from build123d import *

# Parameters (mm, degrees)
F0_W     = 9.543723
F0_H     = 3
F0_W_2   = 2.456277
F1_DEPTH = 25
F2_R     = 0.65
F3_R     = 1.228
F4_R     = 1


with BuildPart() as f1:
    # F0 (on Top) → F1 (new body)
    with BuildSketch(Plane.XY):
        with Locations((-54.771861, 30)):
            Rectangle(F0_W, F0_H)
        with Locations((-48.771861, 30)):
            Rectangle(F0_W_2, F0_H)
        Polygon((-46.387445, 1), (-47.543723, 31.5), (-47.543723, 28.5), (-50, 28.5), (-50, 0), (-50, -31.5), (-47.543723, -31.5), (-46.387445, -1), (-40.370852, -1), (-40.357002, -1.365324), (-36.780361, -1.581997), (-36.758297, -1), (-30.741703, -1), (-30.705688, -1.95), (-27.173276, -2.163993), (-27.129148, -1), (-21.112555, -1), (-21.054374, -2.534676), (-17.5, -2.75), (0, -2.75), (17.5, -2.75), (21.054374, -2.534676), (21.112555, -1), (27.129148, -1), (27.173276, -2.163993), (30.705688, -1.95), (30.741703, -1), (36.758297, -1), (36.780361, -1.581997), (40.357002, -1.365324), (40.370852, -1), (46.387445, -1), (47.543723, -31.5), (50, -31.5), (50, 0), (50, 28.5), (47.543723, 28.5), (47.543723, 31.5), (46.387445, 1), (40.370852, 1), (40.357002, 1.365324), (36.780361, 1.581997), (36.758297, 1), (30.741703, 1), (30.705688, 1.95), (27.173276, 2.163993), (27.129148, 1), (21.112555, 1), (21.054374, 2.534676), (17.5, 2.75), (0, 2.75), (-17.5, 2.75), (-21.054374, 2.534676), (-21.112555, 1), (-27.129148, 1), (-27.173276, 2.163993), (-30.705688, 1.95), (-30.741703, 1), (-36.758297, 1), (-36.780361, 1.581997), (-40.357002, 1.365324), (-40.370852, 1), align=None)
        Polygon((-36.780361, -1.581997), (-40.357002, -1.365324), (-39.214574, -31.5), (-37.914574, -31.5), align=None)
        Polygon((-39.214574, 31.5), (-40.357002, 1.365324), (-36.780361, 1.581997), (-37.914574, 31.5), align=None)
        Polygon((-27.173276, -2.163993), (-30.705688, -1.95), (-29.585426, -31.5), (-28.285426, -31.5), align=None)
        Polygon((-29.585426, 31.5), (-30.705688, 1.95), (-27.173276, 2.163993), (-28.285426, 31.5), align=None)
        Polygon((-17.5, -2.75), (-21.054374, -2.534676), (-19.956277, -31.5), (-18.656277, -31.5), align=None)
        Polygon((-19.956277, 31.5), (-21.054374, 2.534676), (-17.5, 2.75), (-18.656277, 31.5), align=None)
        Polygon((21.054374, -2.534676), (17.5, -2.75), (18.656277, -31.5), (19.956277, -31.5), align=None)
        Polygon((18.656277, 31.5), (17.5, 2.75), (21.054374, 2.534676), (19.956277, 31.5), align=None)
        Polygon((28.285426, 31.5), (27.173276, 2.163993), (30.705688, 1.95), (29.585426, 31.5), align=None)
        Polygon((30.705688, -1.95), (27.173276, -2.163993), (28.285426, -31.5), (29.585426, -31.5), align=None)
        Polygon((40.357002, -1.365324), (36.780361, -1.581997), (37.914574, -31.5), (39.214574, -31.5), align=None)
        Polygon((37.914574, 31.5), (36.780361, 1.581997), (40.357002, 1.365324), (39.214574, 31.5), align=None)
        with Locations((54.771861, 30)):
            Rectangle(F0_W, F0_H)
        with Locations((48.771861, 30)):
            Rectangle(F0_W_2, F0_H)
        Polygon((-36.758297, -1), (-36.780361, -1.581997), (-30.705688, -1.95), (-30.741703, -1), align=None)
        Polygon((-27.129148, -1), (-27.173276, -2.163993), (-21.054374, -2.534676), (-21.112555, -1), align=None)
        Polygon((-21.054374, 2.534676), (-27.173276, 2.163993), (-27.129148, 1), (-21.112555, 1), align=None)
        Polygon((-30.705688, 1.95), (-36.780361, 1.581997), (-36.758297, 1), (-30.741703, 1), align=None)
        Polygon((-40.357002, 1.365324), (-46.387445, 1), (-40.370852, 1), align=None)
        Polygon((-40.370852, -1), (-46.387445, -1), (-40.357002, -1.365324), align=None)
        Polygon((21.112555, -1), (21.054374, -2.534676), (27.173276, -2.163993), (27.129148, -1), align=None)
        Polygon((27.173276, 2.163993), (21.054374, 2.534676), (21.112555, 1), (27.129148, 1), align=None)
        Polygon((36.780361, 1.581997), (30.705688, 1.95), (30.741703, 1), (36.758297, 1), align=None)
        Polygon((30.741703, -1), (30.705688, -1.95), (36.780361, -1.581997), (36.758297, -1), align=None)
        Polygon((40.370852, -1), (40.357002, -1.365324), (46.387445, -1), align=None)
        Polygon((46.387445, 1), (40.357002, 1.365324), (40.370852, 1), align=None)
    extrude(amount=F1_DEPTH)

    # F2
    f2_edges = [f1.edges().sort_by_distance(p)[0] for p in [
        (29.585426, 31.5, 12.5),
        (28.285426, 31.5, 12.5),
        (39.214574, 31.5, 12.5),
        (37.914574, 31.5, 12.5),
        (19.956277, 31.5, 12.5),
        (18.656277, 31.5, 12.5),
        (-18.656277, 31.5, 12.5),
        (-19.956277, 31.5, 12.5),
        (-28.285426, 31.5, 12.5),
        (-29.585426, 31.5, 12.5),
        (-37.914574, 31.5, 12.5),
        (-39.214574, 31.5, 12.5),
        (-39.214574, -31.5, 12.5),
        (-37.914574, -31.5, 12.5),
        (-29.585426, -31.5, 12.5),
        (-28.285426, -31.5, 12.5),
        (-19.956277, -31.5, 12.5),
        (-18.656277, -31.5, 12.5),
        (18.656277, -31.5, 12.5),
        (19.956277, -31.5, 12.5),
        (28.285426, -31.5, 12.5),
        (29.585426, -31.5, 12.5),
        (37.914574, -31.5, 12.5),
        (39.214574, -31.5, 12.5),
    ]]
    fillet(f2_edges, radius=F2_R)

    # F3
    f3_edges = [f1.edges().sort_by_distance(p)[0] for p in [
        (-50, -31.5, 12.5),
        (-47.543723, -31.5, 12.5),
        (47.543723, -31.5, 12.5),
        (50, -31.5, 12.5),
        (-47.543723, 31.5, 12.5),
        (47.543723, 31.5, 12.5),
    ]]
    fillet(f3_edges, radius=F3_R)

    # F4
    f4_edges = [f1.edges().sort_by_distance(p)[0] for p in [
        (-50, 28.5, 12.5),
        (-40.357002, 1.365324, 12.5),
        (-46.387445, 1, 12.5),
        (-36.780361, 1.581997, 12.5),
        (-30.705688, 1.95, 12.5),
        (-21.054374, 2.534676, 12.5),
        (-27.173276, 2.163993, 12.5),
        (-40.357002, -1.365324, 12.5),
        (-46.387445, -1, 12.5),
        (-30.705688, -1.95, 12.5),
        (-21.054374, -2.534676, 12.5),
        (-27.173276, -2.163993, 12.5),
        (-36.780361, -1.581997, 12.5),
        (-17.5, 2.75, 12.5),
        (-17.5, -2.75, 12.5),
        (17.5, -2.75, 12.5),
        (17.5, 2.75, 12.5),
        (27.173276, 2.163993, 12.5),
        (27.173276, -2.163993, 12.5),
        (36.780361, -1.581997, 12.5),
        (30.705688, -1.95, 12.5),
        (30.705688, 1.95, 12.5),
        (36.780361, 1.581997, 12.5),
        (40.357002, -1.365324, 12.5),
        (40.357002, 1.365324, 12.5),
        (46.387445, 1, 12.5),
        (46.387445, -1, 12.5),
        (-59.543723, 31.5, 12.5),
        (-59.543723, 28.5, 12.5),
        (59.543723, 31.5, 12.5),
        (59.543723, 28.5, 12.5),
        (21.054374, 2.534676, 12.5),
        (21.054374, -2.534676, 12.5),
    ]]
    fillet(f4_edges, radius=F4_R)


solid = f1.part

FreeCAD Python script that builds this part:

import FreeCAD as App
import Part
import Sketcher
Q = App.Units.Quantity


def edges_at(feature, points):
    """Names of the edges that pass closest to the given points."""
    edges = feature.Shape.Edges
    near = lambda p: min(range(len(edges)), key=lambda i: edges[i].distToShape(Part.Vertex(*p))[0])
    return sorted({f"Edge{near(p) + 1}" for p in points})


def add_polygon(sketch, points):
    """Adds a closed chain of lines whose ends are joined by coincident constraints."""
    first, n = sketch.GeometryCount, len(points)
    for a, b in zip(points, points[1:] + points[:1]):
        sketch.addGeometry(Part.LineSegment(App.Vector(*a, 0), App.Vector(*b, 0)), False)
    for i in range(n):
        sketch.addConstraint(Sketcher.Constraint("Coincident", first + i, 2, first + (i + 1) % n, 1))

doc = App.newDocument("Part")
body = doc.addObject("PartDesign::Body", "Body")

sketch1 = body.newObject("Sketcher::SketchObject", "Sketch")
sketch1.AttachmentSupport = (doc.getObject("XY_Plane"), [""])
sketch1.MapMode = "FlatFace"
add_polygon(sketch1, [(-59.543723, 31.5), (-59.543723, 28.5), (-50, 28.5), (-50, -31.5), (-47.543723, -31.5), (-46.387445, -1), (-40.357002, -1.365324), (-39.214574, -31.5), (-37.914574, -31.5), (-36.780361, -1.581997), (-30.705688, -1.95), (-29.585426, -31.5), (-28.285426, -31.5), (-27.173276, -2.163993), (-21.054374, -2.534676), (-19.956277, -31.5), (-18.656277, -31.5), (-17.5, -2.75), (17.5, -2.75), (18.656277, -31.5), (19.956277, -31.5), (21.054374, -2.534676), (27.173276, -2.163993), (28.285426, -31.5), (29.585426, -31.5), (30.705688, -1.95), (36.780361, -1.581997), (37.914574, -31.5), (39.214574, -31.5), (40.357002, -1.365324), (46.387445, -1), (47.543723, -31.5), (50, -31.5), (50, 28.5), (59.543723, 28.5), (59.543723, 31.5), (47.543723, 31.5), (47.543723, 31.499987), (46.387445, 1), (40.357002, 1.365324), (39.214574, 31.5), (37.914574, 31.5), (36.780361, 1.581997), (30.705688, 1.95), (29.585426, 31.5), (28.285426, 31.5), (27.173276, 2.163993), (21.054374, 2.534676), (19.956277, 31.5), (18.656277, 31.5), (17.5, 2.75), (-17.5, 2.75), (-18.656277, 31.5), (-19.956277, 31.5), (-21.054374, 2.534676), (-27.173276, 2.163993), (-28.285426, 31.5), (-29.585426, 31.5), (-30.705688, 1.95), (-36.780361, 1.581997), (-37.914574, 31.5), (-39.214574, 31.5), (-40.357002, 1.365324), (-46.387445, 1), (-47.543723, 31.499987), (-47.543723, 31.5)])
sketch1.addConstraint([
    Sketcher.Constraint("Vertical", 0),
    Sketcher.Constraint("Horizontal", 1),
    Sketcher.Constraint("Vertical", 2),
    Sketcher.Constraint("Horizontal", 3),
    Sketcher.Constraint("Horizontal", 7),
    Sketcher.Constraint("Horizontal", 11),
    Sketcher.Constraint("Horizontal", 15),
    Sketcher.Constraint("Horizontal", 17),
    Sketcher.Constraint("Horizontal", 19),
    Sketcher.Constraint("Horizontal", 23),
    Sketcher.Constraint("Horizontal", 27),
    Sketcher.Constraint("Horizontal", 31),
    Sketcher.Constraint("Vertical", 32),
    Sketcher.Constraint("Horizontal", 33),
    Sketcher.Constraint("Vertical", 34),
    Sketcher.Constraint("Horizontal", 35),
    Sketcher.Constraint("Vertical", 36),
    Sketcher.Constraint("Horizontal", 40),
    Sketcher.Constraint("Horizontal", 44),
    Sketcher.Constraint("Horizontal", 48),
    Sketcher.Constraint("Horizontal", 50),
    Sketcher.Constraint("Horizontal", 52),
    Sketcher.Constraint("Horizontal", 56),
    Sketcher.Constraint("Horizontal", 60),
    Sketcher.Constraint("Vertical", 64),
    Sketcher.Constraint("Horizontal", 65),
    Sketcher.Constraint("DistanceX", 17, 1, 17, 2, Q("35 mm")),
    Sketcher.Constraint("DistanceX", 35, 2, 35, 1, Q("12 mm")),
    Sketcher.Constraint("DistanceX", 50, 2, 50, 1, Q("35 mm")),
    Sketcher.Constraint("DistanceX", 65, 2, 65, 1, Q("12 mm")),
    Sketcher.Constraint("DistanceY", 0, 2, 0, 1, Q("3 mm")),
    Sketcher.Constraint("DistanceY", 2, 2, 2, 1, Q("60 mm")),
    Sketcher.Constraint("DistanceY", 32, 1, 32, 2, Q("60 mm")),
    Sketcher.Constraint("DistanceY", 34, 1, 34, 2, Q("3 mm")),
    Sketcher.Constraint("DistanceX", 7, 1, 7, 2, Q("1.3 mm")),
    Sketcher.Constraint("DistanceX", 11, 1, 11, 2, Q("1.3 mm")),
    Sketcher.Constraint("DistanceX", 15, 1, 15, 2, Q("1.3 mm")),
    Sketcher.Constraint("DistanceX", 19, 1, 19, 2, Q("1.3 mm")),
    Sketcher.Constraint("DistanceX", 23, 1, 23, 2, Q("1.3 mm")),
    Sketcher.Constraint("DistanceX", 27, 1, 27, 2, Q("1.3 mm")),
    Sketcher.Constraint("DistanceX", 40, 2, 40, 1, Q("1.3 mm")),
    Sketcher.Constraint("DistanceX", 44, 2, 44, 1, Q("1.3 mm")),
    Sketcher.Constraint("DistanceX", 48, 2, 48, 1, Q("1.3 mm")),
    Sketcher.Constraint("DistanceX", 52, 2, 52, 1, Q("1.3 mm")),
    Sketcher.Constraint("DistanceX", 56, 2, 56, 1, Q("1.3 mm")),
    Sketcher.Constraint("DistanceX", 60, 2, 60, 1, Q("1.3 mm")),
    Sketcher.Constraint("DistanceX", 1, 2, -1, 1, Q("50 mm")),
    Sketcher.Constraint("DistanceY", 4, 2, -1, 1, Q("1 mm")),
    Sketcher.Constraint("DistanceY", 29, 2, -1, 1, Q("1 mm")),
    Sketcher.Constraint("DistanceX", -1, 1, 31, 2, Q("50 mm")),
    Sketcher.Constraint("DistanceY", -1, 1, 37, 2, Q("1 mm")),
    Sketcher.Constraint("DistanceY", -1, 1, 62, 2, Q("1 mm")),
    Sketcher.Constraint("DistanceY", -1, 1, 0, 2, Q("28.5 mm")),
    Sketcher.Constraint("DistanceY", 6, 2, -1, 1, Q("31.5 mm")),
    Sketcher.Constraint("DistanceY", 10, 2, -1, 1, Q("31.5 mm")),
    Sketcher.Constraint("DistanceY", 14, 2, -1, 1, Q("31.5 mm")),
    Sketcher.Constraint("DistanceX", 16, 2, -1, 1, Q("17.5 mm")),
    Sketcher.Constraint("DistanceY", 18, 2, -1, 1, Q("31.5 mm")),
    Sketcher.Constraint("DistanceY", 22, 2, -1, 1, Q("31.5 mm")),
    Sketcher.Constraint("DistanceY", 26, 2, -1, 1, Q("31.5 mm")),
    Sketcher.Constraint("DistanceY", 30, 2, -1, 1, Q("31.5 mm")),
    Sketcher.Constraint("DistanceY", -1, 1, 39, 2, Q("31.5 mm")),
    Sketcher.Constraint("DistanceY", -1, 1, 43, 2, Q("31.5 mm")),
    Sketcher.Constraint("DistanceY", -1, 1, 47, 2, Q("31.5 mm")),
    Sketcher.Constraint("DistanceX", -1, 1, 49, 2, Q("17.5 mm")),
    Sketcher.Constraint("DistanceY", -1, 1, 51, 2, Q("31.5 mm")),
    Sketcher.Constraint("DistanceY", -1, 1, 55, 2, Q("31.5 mm")),
    Sketcher.Constraint("DistanceY", -1, 1, 59, 2, Q("31.5 mm")),
    Sketcher.Constraint("DistanceY", 9, 2, -1, 1, Q("1.95 mm")),
    Sketcher.Constraint("DistanceY", 16, 2, -1, 1, Q("2.75 mm")),
    Sketcher.Constraint("DistanceY", 24, 2, -1, 1, Q("1.95 mm")),
    Sketcher.Constraint("DistanceY", -1, 1, 42, 2, Q("1.95 mm")),
    Sketcher.Constraint("DistanceY", -1, 1, 49, 2, Q("2.75 mm")),
    Sketcher.Constraint("DistanceY", -1, 1, 57, 2, Q("1.95 mm")),
    Sketcher.Constraint("Distance", 5, Q("6.041499 mm")),
    Sketcher.Constraint("Distance", 29, Q("6.041499 mm")),
    Sketcher.Constraint("Distance", 38, Q("6.041499 mm")),
    Sketcher.Constraint("Distance", 62, Q("6.041499 mm")),
    Sketcher.Constraint("Distance", 4, Q("30.52191 mm")),
    Sketcher.Constraint("Distance", 9, Q("6.08581 mm")),
    Sketcher.Constraint("Distance", 12, Q("29.357081 mm")),
    Sketcher.Constraint("Distance", 13, Q("6.13012 mm")),
    Sketcher.Constraint("Distance", 14, Q("28.986131 mm")),
    Sketcher.Constraint("Distance", 20, Q("28.986131 mm")),
    Sketcher.Constraint("Distance", 21, Q("6.13012 mm")),
    Sketcher.Constraint("Distance", 22, Q("29.357081 mm")),
    Sketcher.Constraint("Distance", 25, Q("6.08581 mm")),
    Sketcher.Constraint("Distance", 30, Q("30.52191 mm")),
    Sketcher.Constraint("Distance", 42, Q("6.08581 mm")),
    Sketcher.Constraint("Distance", 45, Q("29.357081 mm")),
    Sketcher.Constraint("Distance", 46, Q("6.13012 mm")),
    Sketcher.Constraint("Distance", 47, Q("28.986131 mm")),
    Sketcher.Constraint("Distance", 53, Q("28.986131 mm")),
    Sketcher.Constraint("Distance", 54, Q("6.13012 mm")),
    Sketcher.Constraint("Distance", 55, Q("29.357081 mm")),
    Sketcher.Constraint("Distance", 58, Q("6.08581 mm")),
    Sketcher.Constraint("DistanceX", 1, 1, 1, 2, Q("9.543723 mm")),
    Sketcher.Constraint("DistanceX", 3, 1, 3, 2, Q("2.456277 mm")),
    Sketcher.Constraint("DistanceX", 31, 1, 31, 2, Q("2.456277 mm")),
    Sketcher.Constraint("DistanceX", 33, 1, 33, 2, Q("9.543723 mm")),
    Sketcher.Constraint("DistanceX", 8, 2, -1, 1, Q("36.780361 mm")),
    Sketcher.Constraint("DistanceX", -1, 1, 25, 2, Q("36.780361 mm")),
    Sketcher.Constraint("DistanceX", -1, 1, 41, 2, Q("36.780361 mm")),
    Sketcher.Constraint("DistanceX", 58, 2, -1, 1, Q("36.780361 mm")),
    Sketcher.Constraint("Distance", 6, Q("30.156323 mm")),
    Sketcher.Constraint("Distance", 8, Q("29.939495 mm")),
    Sketcher.Constraint("Distance", 10, Q("29.571227 mm")),
    Sketcher.Constraint("Distance", 16, Q("28.773242 mm")),
    Sketcher.Constraint("Distance", 18, Q("28.773242 mm")),
    Sketcher.Constraint("Distance", 24, Q("29.571227 mm")),
    Sketcher.Constraint("Distance", 26, Q("29.939495 mm")),
    Sketcher.Constraint("Distance", 28, Q("30.156323 mm")),
    Sketcher.Constraint("Distance", 37, Q("30.521897 mm")),
    Sketcher.Constraint("Distance", 39, Q("30.156323 mm")),
    Sketcher.Constraint("Distance", 41, Q("29.939495 mm")),
    Sketcher.Constraint("Distance", 43, Q("29.571227 mm")),
    Sketcher.Constraint("Distance", 49, Q("28.773242 mm")),
    Sketcher.Constraint("Distance", 51, Q("28.773242 mm")),
    Sketcher.Constraint("Distance", 57, Q("29.571227 mm")),
    Sketcher.Constraint("Distance", 59, Q("29.939495 mm")),
    Sketcher.Constraint("Distance", 61, Q("30.156323 mm")),
    Sketcher.Constraint("Distance", 63, Q("30.521897 mm")),
    Sketcher.Constraint("DistanceY", 5, 2, -1, 1, Q("1.365324 mm")),
    Sketcher.Constraint("DistanceX", 12, 2, -1, 1, Q("27.173276 mm")),
    Sketcher.Constraint("DistanceX", -1, 1, 20, 2, Q("21.054374 mm")),
    Sketcher.Constraint("DistanceY", 25, 2, -1, 1, Q("1.581997 mm")),
    Sketcher.Constraint("DistanceY", -1, 1, 36, 2, Q("31.499987 mm")),
    Sketcher.Constraint("DistanceY", -1, 1, 38, 2, Q("1.365324 mm")),
    Sketcher.Constraint("DistanceX", -1, 1, 45, 2, Q("27.173276 mm")),
    Sketcher.Constraint("DistanceX", 53, 2, -1, 1, Q("21.054374 mm")),
    Sketcher.Constraint("DistanceY", -1, 1, 58, 2, Q("1.581997 mm")),
    Sketcher.Constraint("DistanceX", 61, 2, -1, 1, Q("40.357002 mm")),
])
pad1 = body.newObject("PartDesign::Pad", "Pad")
pad1.Profile = sketch1
pad1.Length = 25
doc.recompute()

fillet = body.newObject("PartDesign::Fillet", "Fillet")
fillet.Base = (pad1, edges_at(pad1, [
    (29.585, 31.5, 12.5),
    (28.285, 31.5, 12.5),
    (39.215, 31.5, 12.5),
    (37.915, 31.5, 12.5),
    (19.956, 31.5, 12.5),
    (18.656, 31.5, 12.5),
    (-18.656, 31.5, 12.5),
    (-19.956, 31.5, 12.5),
    (-28.285, 31.5, 12.5),
    (-29.585, 31.5, 12.5),
    (-37.915, 31.5, 12.5),
    (-39.215, 31.5, 12.5),
    (-39.215, -31.5, 12.5),
    (-37.915, -31.5, 12.5),
    (-29.585, -31.5, 12.5),
    (-28.285, -31.5, 12.5),
    (-19.956, -31.5, 12.5),
    (-18.656, -31.5, 12.5),
    (18.656, -31.5, 12.5),
    (19.956, -31.5, 12.5),
    (28.285, -31.5, 12.5),
    (29.585, -31.5, 12.5),
    (37.915, -31.5, 12.5),
    (39.215, -31.5, 12.5),
]))
fillet.Radius = 0.65
doc.recompute()

fillet2 = body.newObject("PartDesign::Fillet", "Fillet001")
fillet2.Base = (fillet, edges_at(fillet, [
    (-50, -31.5, 12.5),
    (-47.544, -31.5, 12.5),
    (47.544, -31.5, 12.5),
    (50, -31.5, 12.5),
    (-47.544, 31.5, 12.5),
    (47.544, 31.5, 12.5),
]))
fillet2.Radius = 1.228
doc.recompute()

fillet3 = body.newObject("PartDesign::Fillet", "Fillet002")
fillet3.Base = (fillet2, edges_at(fillet2, [
    (-50, 28.5, 12.5),
    (-40.357, 1.365, 12.5),
    (-46.387, 1, 12.5),
    (-36.78, 1.582, 12.5),
    (-30.706, 1.95, 12.5),
    (-21.054, 2.535, 12.5),
    (-27.173, 2.164, 12.5),
    (-40.357, -1.365, 12.5),
    (-46.387, -1, 12.5),
    (-30.706, -1.95, 12.5),
    (-21.054, -2.535, 12.5),
    (-27.173, -2.164, 12.5),
    (-36.78, -1.582, 12.5),
    (-17.5, 2.75, 12.5),
    (-17.5, -2.75, 12.5),
    (17.5, -2.75, 12.5),
    (17.5, 2.75, 12.5),
    (27.173, 2.164, 12.5),
    (27.173, -2.164, 12.5),
    (36.78, -1.582, 12.5),
    (30.706, -1.95, 12.5),
    (30.706, 1.95, 12.5),
    (36.78, 1.582, 12.5),
    (40.357, -1.365, 12.5),
    (40.357, 1.365, 12.5),
    (46.387, 1, 12.5),
    (46.387, -1, 12.5),
    (-59.544, 31.5, 12.5),
    (-59.544, 28.5, 12.5),
    (59.544, 31.5, 12.5),
    (59.544, 28.5, 12.5),
    (21.054, 2.535, 12.5),
    (21.054, -2.535, 12.5),
]))
fillet3.Radius = 1

doc.recompute()
